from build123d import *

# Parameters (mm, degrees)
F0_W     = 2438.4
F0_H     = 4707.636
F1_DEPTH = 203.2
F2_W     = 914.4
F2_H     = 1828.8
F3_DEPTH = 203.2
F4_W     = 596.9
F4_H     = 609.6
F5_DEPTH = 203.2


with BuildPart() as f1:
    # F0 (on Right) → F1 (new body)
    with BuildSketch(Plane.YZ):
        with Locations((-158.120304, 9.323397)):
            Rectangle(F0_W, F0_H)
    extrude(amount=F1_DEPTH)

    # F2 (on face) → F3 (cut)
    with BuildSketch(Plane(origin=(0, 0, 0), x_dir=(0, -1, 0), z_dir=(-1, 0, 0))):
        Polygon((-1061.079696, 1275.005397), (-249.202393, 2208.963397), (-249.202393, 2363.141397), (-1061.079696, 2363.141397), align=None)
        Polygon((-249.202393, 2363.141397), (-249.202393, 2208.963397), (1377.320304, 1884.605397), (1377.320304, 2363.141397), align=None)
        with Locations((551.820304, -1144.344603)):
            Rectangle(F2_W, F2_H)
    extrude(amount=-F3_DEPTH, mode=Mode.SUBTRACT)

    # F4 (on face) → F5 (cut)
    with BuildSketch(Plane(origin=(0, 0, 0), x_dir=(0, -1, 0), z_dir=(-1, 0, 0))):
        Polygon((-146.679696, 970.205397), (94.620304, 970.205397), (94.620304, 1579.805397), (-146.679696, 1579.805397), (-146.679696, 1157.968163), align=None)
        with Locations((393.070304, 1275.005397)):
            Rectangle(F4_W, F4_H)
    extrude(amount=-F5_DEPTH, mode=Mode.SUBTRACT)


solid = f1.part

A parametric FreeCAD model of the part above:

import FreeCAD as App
import Part
import Sketcher
from FreeCAD import Vector
Q = App.Units.Quantity


def add_polygon(sketch, points):
    """Adds a closed chain of lines whose ends are joined by coincident constraints."""
    first, n = sketch.GeometryCount, len(points)
    for a, b in zip(points, points[1:] + points[:1]):
        sketch.addGeometry(Part.LineSegment(App.Vector(*a, 0), App.Vector(*b, 0)), False)
    for i in range(n):
        sketch.addConstraint(Sketcher.Constraint("Coincident", first + i, 2, first + (i + 1) % n, 1))

doc = App.newDocument("Part")
body = doc.addObject("PartDesign::Body", "Body")

sketch1 = body.newObject("Sketcher::SketchObject", "Sketch")
sketch1.AttachmentSupport = (doc.getObject("YZ_Plane"), [""])
sketch1.MapMode = "FlatFace"
add_polygon(sketch1, [(-1377, 2363), (-1377, -2344), (1061, -2344), (1061, 2363)])
sketch1.addConstraint(Sketcher.Constraint("Vertical", 0))
sketch1.addConstraint(Sketcher.Constraint("Horizontal", 1))
sketch1.addConstraint(Sketcher.Constraint("Vertical", 2))
sketch1.addConstraint(Sketcher.Constraint("Horizontal", 3))
sketch1.addConstraint(Sketcher.Constraint("DistanceX", 1, 1, 1, 2, Q("96 in")))
sketch1.addConstraint(Sketcher.Constraint("DistanceY", 0, 2, 0, 1, Q("185.34 in")))
sketch1.addConstraint(Sketcher.Constraint("DistanceX", 0, 2, -1, 1, 1377.320304))
sketch1.addConstraint(Sketcher.Constraint("DistanceY", 0, 2, -1, 1, 2344.494603))
pad1 = body.newObject("PartDesign::Pad", "Pad")
pad1.Profile = sketch1
pad1.Length = Q("8 in")

sketch2 = body.newObject("Sketcher::SketchObject", "Sketch001")
sketch2.AttachmentSupport = (doc.getObject("YZ_Plane"), [""])
sketch2.MapMode = "FlatFace"
add_polygon(sketch2, [(1061, 1275), (249, 2209), (-1377, 1885), (-1377, 2363), (1061, 2363)])
add_polygon(sketch2, [(-95, -230), (-95, -2059), (-1009, -2059), (-1009, -230)])
sketch2.addConstraint(Sketcher.Constraint("Vertical", 2))
sketch2.addConstraint(Sketcher.Constraint("Horizontal", 3))
sketch2.addConstraint(Sketcher.Constraint("Vertical", 4))
sketch2.addConstraint(Sketcher.Constraint("Vertical", 5))
sketch2.addConstraint(Sketcher.Constraint("Horizontal", 6))
sketch2.addConstraint(Sketcher.Constraint("Vertical", 7))
sketch2.addConstraint(Sketcher.Constraint("Horizontal", 8))
sketch2.addConstraint(Sketcher.Constraint("DistanceX", 3, 1, 3, 2, Q("96 in")))
sketch2.addConstraint(Sketcher.Constraint("DistanceX", 6, 2, 6, 1, Q("36 in")))
sketch2.addConstraint(Sketcher.Constraint("DistanceY", 5, 2, 5, 1, Q("72 in")))
sketch2.addConstraint(Sketcher.Constraint("Angle", 0, Q("131 deg")))
sketch2.addConstraint(Sketcher.Constraint("DistanceY", 4, 2, 1, 2, Q("24 in")))
sketch2.addConstraint(Sketcher.Constraint("DistanceY", 2, 1, 2, 2, Q("18.84 in")))
sketch2.addConstraint(Sketcher.Constraint("DistanceX", 5, 2, 4, 2, Q("45.5 in")))
sketch2.addConstraint(Sketcher.Constraint("DistanceY", 1, 2, 0, 2, Q("12.77 in")))
sketch2.addConstraint(Sketcher.Constraint("DistanceY", 5, 2, 4, 2, Q("131.25 in")))
sketch2.addConstraint(Sketcher.Constraint("DistanceX", -1, 1, 0, 2, 249.202393))
sketch2.addConstraint(Sketcher.Constraint("DistanceY", -1, 1, 0, 2, 2208.963397))
pocket1 = body.newObject("PartDesign::Pocket", "Pocket")
pocket1.Profile = sketch2
pocket1.Length = Q("8 in")
pocket1.Reversed = True

sketch3 = body.newObject("Sketcher::SketchObject", "Sketch002")
sketch3.AttachmentSupport = (doc.getObject("YZ_Plane"), [""])
sketch3.MapMode = "FlatFace"
add_polygon(sketch3, [(147, 970), (-692, 970), (-692, 1580), (147, 1580)])
sketch3.addConstraint(Sketcher.Constraint("Horizontal", 0))
sketch3.addConstraint(Sketcher.Constraint("Vertical", 1))
sketch3.addConstraint(Sketcher.Constraint("Horizontal", 2))
sketch3.addConstraint(Sketcher.Constraint("Vertical", 3))
sketch3.addConstraint(Sketcher.Constraint("DistanceX", 0, 2, 0, 1, Q("33 in")))
sketch3.addConstraint(Sketcher.Constraint("DistanceY", 1, 1, 1, 2, Q("24 in")))
sketch3.addConstraint(Sketcher.Constraint("DistanceX", 0, 2, -1, 1, 691.520304))
sketch3.addConstraint(Sketcher.Constraint("DistanceY", -1, 1, 0, 2, 970.205397))
pocket2 = body.newObject("PartDesign::Pocket", "Pocket001")
pocket2.Profile = sketch3
pocket2.Length = Q("8 in")
pocket2.Reversed = True

doc.recompute()
